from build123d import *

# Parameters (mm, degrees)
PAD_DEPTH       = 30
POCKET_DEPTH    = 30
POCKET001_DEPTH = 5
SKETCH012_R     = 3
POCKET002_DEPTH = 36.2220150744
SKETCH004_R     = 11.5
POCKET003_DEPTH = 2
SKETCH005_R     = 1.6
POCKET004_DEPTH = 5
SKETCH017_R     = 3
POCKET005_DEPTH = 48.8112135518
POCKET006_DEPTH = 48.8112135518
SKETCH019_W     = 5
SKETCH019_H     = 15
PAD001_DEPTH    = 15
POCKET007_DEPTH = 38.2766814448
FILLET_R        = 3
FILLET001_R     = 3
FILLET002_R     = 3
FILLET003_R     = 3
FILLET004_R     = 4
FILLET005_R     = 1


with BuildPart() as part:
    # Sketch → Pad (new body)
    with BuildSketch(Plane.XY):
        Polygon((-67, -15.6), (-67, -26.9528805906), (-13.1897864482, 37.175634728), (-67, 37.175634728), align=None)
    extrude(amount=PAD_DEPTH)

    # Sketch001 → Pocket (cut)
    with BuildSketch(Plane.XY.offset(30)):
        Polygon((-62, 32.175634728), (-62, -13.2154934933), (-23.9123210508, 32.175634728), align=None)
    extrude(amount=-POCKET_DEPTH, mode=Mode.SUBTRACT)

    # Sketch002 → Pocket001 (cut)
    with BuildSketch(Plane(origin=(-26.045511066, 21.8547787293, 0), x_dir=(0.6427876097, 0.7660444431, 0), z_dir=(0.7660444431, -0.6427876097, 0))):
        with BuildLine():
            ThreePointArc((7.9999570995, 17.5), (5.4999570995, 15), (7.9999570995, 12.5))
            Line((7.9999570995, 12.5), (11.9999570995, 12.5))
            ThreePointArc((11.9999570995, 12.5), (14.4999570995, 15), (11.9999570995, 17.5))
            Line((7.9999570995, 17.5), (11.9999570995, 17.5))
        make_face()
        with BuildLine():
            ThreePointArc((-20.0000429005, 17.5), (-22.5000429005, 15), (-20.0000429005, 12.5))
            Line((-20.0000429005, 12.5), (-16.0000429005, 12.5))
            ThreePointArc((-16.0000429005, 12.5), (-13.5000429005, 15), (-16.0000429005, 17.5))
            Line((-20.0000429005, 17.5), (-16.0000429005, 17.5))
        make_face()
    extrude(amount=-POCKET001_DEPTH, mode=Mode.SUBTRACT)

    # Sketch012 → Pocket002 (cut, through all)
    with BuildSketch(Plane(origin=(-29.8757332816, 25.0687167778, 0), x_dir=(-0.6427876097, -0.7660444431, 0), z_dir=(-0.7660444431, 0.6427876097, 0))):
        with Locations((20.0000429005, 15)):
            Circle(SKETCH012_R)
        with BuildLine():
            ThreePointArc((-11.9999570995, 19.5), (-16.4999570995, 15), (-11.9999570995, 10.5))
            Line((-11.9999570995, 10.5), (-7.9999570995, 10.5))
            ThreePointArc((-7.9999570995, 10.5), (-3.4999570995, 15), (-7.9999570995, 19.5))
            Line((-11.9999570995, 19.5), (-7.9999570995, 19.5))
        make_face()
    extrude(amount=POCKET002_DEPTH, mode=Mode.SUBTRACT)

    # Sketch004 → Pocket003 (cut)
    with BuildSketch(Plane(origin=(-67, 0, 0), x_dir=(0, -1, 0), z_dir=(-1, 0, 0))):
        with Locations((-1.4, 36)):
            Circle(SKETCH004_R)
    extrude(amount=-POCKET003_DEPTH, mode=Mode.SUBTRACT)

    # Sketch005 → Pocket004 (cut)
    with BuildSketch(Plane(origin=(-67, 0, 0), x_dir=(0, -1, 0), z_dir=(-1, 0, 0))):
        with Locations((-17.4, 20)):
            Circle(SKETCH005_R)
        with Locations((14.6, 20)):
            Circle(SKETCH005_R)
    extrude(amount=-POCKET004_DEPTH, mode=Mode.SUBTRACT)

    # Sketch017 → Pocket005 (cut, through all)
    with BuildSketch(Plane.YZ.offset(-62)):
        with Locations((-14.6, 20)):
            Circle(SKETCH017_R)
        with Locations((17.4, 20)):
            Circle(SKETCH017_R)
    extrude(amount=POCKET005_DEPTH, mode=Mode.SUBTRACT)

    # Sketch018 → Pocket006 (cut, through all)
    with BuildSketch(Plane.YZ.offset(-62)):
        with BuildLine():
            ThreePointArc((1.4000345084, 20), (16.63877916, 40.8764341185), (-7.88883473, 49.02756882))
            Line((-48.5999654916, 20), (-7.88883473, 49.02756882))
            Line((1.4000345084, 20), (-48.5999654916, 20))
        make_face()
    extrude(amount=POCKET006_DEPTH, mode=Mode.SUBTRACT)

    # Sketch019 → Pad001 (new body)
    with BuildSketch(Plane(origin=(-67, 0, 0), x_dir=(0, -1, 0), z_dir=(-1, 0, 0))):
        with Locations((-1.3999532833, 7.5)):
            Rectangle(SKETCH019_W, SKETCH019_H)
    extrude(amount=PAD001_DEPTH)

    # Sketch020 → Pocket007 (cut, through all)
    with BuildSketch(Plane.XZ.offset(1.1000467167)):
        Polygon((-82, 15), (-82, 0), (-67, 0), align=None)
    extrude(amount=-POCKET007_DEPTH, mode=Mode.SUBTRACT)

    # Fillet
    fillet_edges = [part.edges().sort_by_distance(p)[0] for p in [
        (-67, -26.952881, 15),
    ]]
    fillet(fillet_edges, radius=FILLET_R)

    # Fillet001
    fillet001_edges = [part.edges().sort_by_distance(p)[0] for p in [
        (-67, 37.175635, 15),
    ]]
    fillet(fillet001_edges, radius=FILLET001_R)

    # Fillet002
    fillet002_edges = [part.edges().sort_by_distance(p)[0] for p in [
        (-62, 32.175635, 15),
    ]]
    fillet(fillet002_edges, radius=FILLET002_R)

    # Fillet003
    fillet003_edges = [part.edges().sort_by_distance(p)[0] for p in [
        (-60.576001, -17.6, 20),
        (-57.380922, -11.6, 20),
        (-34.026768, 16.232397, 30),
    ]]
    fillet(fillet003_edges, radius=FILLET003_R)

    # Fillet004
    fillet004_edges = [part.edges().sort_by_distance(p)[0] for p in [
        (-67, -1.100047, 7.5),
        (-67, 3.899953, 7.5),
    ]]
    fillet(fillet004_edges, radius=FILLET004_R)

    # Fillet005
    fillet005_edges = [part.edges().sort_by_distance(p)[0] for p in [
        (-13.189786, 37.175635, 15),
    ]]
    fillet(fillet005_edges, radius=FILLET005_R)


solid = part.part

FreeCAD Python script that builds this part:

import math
import FreeCAD as App
import Part
import Sketcher
Q = App.Units.Quantity


def edges_at(feature, points):
    """Names of the edges that pass closest to the given points."""
    edges = feature.Shape.Edges
    near = lambda p: min(range(len(edges)), key=lambda i: edges[i].distToShape(Part.Vertex(*p))[0])
    return sorted({f"Edge{near(p) + 1}" for p in points})

doc = App.newDocument("Part")
params = doc.addObject("Spreadsheet::Sheet", "Params")
for row, (alias, value) in enumerate([
    ("pad1_length", "30 mm"),
    ("pocket1_length", "30 mm"),
    ("sketch3_radius", "2.5 mm"),
    ("sketch3_width", "4 mm"),
    ("pocket2_length", "5 mm"),
    ("sketch4_diameter", "6 mm"),
    ("sketch4_radius", "4.5 mm"),
    ("sketch4_width", "4 mm"),
    ("sketch5_diameter", "23 mm"),
    ("pocket4_length", "2 mm"),
    ("sketch6_diameter", "3.2 mm"),
    ("pocket5_length", "5 mm"),
    ("sketch7_diameter", "6 mm"),
    ("sketch8_radius", "16 mm"),
    ("sketch8_width", "50 mm"),
    ("sketch9_width", "5 mm"),
    ("sketch9_height", "15 mm"),
    ("pad2_length", "15 mm"),
    ("sketch10_width", "15 mm"),
    ("fillet_radius", "3 mm"),
    ("fillet2_radius", "3 mm"),
    ("fillet3_radius", "3 mm"),
    ("fillet4_radius", "3 mm"),
    ("fillet5_radius", "4 mm"),
    ("fillet6_radius", "1 mm"),
], start=1):
    params.set(f"A{row}", alias)
    params.set(f"B{row}", "=" + value)
    params.setAlias(f"B{row}", alias)

body = doc.addObject("PartDesign::Body", "Body")

# Sketch on XY plane
sketch1 = body.newObject("Sketcher::SketchObject", "Sketch")
sketch1.AttachmentSupport = (doc.getObject("XY_Plane"), [""])
sketch1.MapMode = "FlatFace"
sketch1.addGeometry(Part.LineSegment(App.Vector(-67, -27, 0), App.Vector(-13, 37, 0)), False)
sketch1.addGeometry(Part.LineSegment(App.Vector(-13, 37, 0), App.Vector(-67, 37, 0)), False)
sketch1.addGeometry(Part.LineSegment(App.Vector(-67, 37, 0), App.Vector(-67, -27, 0)), False)
sketch1.addConstraint(Sketcher.Constraint("Coincident", 0, 2, 1, 1))
sketch1.addConstraint(Sketcher.Constraint("Coincident", 1, 2, 2, 1))
sketch1.addConstraint(Sketcher.Constraint("Coincident", 2, 2, 0, 1))
sketch1.addConstraint(Sketcher.Constraint("Horizontal", 1))
sketch1.addConstraint(Sketcher.Constraint("Vertical", 2))
sketch1.addConstraint(Sketcher.Constraint("Angle", 0, Q("50 deg")))
sketch1.addConstraint(Sketcher.Constraint("DistanceX", 1, 2, -1, 1, Q("67 mm")))
sketch1.addConstraint(Sketcher.Constraint("Distance", 0, Q("83.713831 mm")))
sketch1.addConstraint(Sketcher.Constraint("DistanceY", 2, 2, -1, 1, Q("26.952881 mm")))
pad1 = body.newObject("PartDesign::Pad", "Pad")
pad1.Profile = sketch1
pad1.setExpression("Length", "Params.pad1_length")

# Sketch on XY plane
sketch2 = body.newObject("Sketcher::SketchObject", "Sketch001")
sketch2.AttachmentSupport = (doc.getObject("XY_Plane"), [""])
sketch2.MapMode = "FlatFace"
sketch2.AttachmentOffset = App.Placement(App.Vector(0, 0, 30), App.Rotation())
sketch2.addGeometry(Part.LineSegment(App.Vector(-62, 32, 0), App.Vector(-62, -13, 0)), False)
sketch2.addGeometry(Part.LineSegment(App.Vector(-62, -13, 0), App.Vector(-24, 32, 0)), False)
sketch2.addGeometry(Part.LineSegment(App.Vector(-24, 32, 0), App.Vector(-62, 32, 0)), False)
sketch2.addConstraint(Sketcher.Constraint("Coincident", 0, 2, 1, 1))
sketch2.addConstraint(Sketcher.Constraint("Coincident", 1, 2, 2, 1))
sketch2.addConstraint(Sketcher.Constraint("Coincident", 2, 2, 0, 1))
sketch2.addConstraint(Sketcher.Constraint("Vertical", 0))
sketch2.addConstraint(Sketcher.Constraint("Horizontal", 2))
sketch2.addConstraint(Sketcher.Constraint("Angle", 1, Q("50 deg")))
sketch2.addConstraint(Sketcher.Constraint("DistanceX", 0, 2, -1, 1, Q("62 mm")))
sketch2.addConstraint(Sketcher.Constraint("DistanceX", 2, 2, 2, 1, Q("38.087679 mm")))
sketch2.addConstraint(Sketcher.Constraint("DistanceY", 0, 2, -1, 1, Q("13.215493 mm")))
pocket1 = body.newObject("PartDesign::Pocket", "Pocket")
pocket1.Profile = sketch2
pocket1.setExpression("Length", "Params.pocket1_length")

# Sketch on an angled plane
sketch3 = body.newObject("Sketcher::SketchObject", "Sketch002")
sketch3.Placement = App.Placement(App.Vector(-26.045511, 21.854779, 0), App.Rotation(App.Vector(0.64278761, 0.766044443, 0), App.Vector(0, 0, 1), App.Vector(0.766044443, -0.64278761, 0), "ZXY"))
sketch3.addGeometry(Part.ArcOfCircle(Part.Circle(App.Vector(8, 15, 0), App.Vector(0, 0, 1), 2.5), math.radians(90), math.radians(270)), False)
sketch3.addGeometry(Part.LineSegment(App.Vector(8, 12.5, 0), App.Vector(12, 12.5, 0)), False)
sketch3.addGeometry(Part.ArcOfCircle(Part.Circle(App.Vector(12, 15, 0), App.Vector(0, 0, 1), 2.5), math.radians(-90), math.radians(90)), False)
sketch3.addGeometry(Part.LineSegment(App.Vector(12, 17.5, 0), App.Vector(8, 17.5, 0)), False)
sketch3.addGeometry(Part.ArcOfCircle(Part.Circle(App.Vector(-20, 15, 0), App.Vector(0, 0, 1), 2.5), math.radians(90), math.radians(270)), False)
sketch3.addGeometry(Part.LineSegment(App.Vector(-20, 12.5, 0), App.Vector(-16, 12.5, 0)), False)
sketch3.addGeometry(Part.ArcOfCircle(Part.Circle(App.Vector(-16, 15, 0), App.Vector(0, 0, 1), 2.5), math.radians(-90), math.radians(90)), False)
sketch3.addGeometry(Part.LineSegment(App.Vector(-16, 17.5, 0), App.Vector(-20, 17.5, 0)), False)
sketch3.addConstraint(Sketcher.Constraint("Tangent", 0, 2, 1, 1))
sketch3.addConstraint(Sketcher.Constraint("Tangent", 1, 2, 2, 1))
sketch3.addConstraint(Sketcher.Constraint("Tangent", 2, 2, 3, 1))
sketch3.addConstraint(Sketcher.Constraint("Tangent", 3, 2, 0, 1))
sketch3.addConstraint(Sketcher.Constraint("Tangent", 4, 2, 5, 1))
sketch3.addConstraint(Sketcher.Constraint("Tangent", 5, 2, 6, 1))
sketch3.addConstraint(Sketcher.Constraint("Tangent", 6, 2, 7, 1))
sketch3.addConstraint(Sketcher.Constraint("Tangent", 7, 2, 4, 1))
sketch3.addConstraint(Sketcher.Constraint("Horizontal", 1))
sketch3.addConstraint(Sketcher.Constraint("Horizontal", 3))
sketch3.addConstraint(Sketcher.Constraint("Horizontal", 5))
sketch3.addConstraint(Sketcher.Constraint("Horizontal", 7))
sketch3.addConstraint(Sketcher.Constraint("Equal", 2, 4))
sketch3.addConstraint(Sketcher.Constraint("Horizontal", 2, 3, 4, 3))
sketch3.addConstraint(Sketcher.Constraint("Equal", 3, 5))
sketch3.addConstraint(Sketcher.Constraint("Radius", 0, Q("2.5 mm")))
sketch3.addConstraint(Sketcher.Constraint("DistanceX", 1, 1, 1, 2, Q("4 mm")))
sketch3.addConstraint(Sketcher.Constraint("DistanceY", -1, 1, 0, 3, Q("15 mm")))
sketch3.addConstraint(Sketcher.Constraint("DistanceX", 4, 3, 0, 3, Q("28 mm")))
sketch3.addConstraint(Sketcher.Constraint("DistanceX", -1, 1, 0, 3, Q("7.999957 mm")))
sketch3.setExpression("Constraints[15]", "Params.sketch3_radius")
sketch3.setExpression("Constraints[16]", "Params.sketch3_width")
pocket2 = body.newObject("PartDesign::Pocket", "Pocket001")
pocket2.Profile = sketch3
pocket2.setExpression("Length", "Params.pocket2_length")

# Sketch on an angled plane
sketch4 = body.newObject("Sketcher::SketchObject", "Sketch003")
sketch4.Placement = App.Placement(App.Vector(-29.875733, 25.068717, 0), App.Rotation(App.Vector(-0.64278761, -0.766044443, 0), App.Vector(0, 0, 1), App.Vector(-0.766044443, 0.64278761, 0), "ZXY"))
sketch4.addGeometry(Part.Circle(App.Vector(20, 15, 0), App.Vector(0, 0, 1), 3), False)
sketch4.addGeometry(Part.ArcOfCircle(Part.Circle(App.Vector(-12, 15, 0), App.Vector(0, 0, 1), 4.5), math.radians(90), math.radians(270)), False)
sketch4.addGeometry(Part.LineSegment(App.Vector(-12, 10.5, 0), App.Vector(-8, 10.5, 0)), False)
sketch4.addGeometry(Part.ArcOfCircle(Part.Circle(App.Vector(-8, 15, 0), App.Vector(0, 0, 1), 4.5), math.radians(-90), math.radians(90)), False)
sketch4.addGeometry(Part.LineSegment(App.Vector(-8, 19.5, 0), App.Vector(-12, 19.5, 0)), False)
sketch4.addConstraint(Sketcher.Constraint("Tangent", 1, 2, 2, 1))
sketch4.addConstraint(Sketcher.Constraint("Tangent", 2, 2, 3, 1))
sketch4.addConstraint(Sketcher.Constraint("Tangent", 3, 2, 4, 1))
sketch4.addConstraint(Sketcher.Constraint("Tangent", 4, 2, 1, 1))
sketch4.addConstraint(Sketcher.Constraint("Horizontal", 2))
sketch4.addConstraint(Sketcher.Constraint("Horizontal", 4))
sketch4.addConstraint(Sketcher.Constraint("Horizontal", 0, 3, 1, 3))
sketch4.addConstraint(Sketcher.Constraint("Diameter", 0, Q("6 mm")))
sketch4.addConstraint(Sketcher.Constraint("Radius", 1, Q("4.5 mm")))
sketch4.addConstraint(Sketcher.Constraint("DistanceX", 2, 1, 2, 2, Q("4 mm")))
sketch4.addConstraint(Sketcher.Constraint("DistanceY", -1, 1, 0, 3, Q("15 mm")))
sketch4.addConstraint(Sketcher.Constraint("DistanceX", 1, 3, 0, 3, Q("32 mm")))
sketch4.addConstraint(Sketcher.Constraint("DistanceX", -1, 1, 0, 3, Q("20.000043 mm")))
sketch4.setExpression("Constraints[7]", "Params.sketch4_diameter")
sketch4.setExpression("Constraints[8]", "Params.sketch4_radius")
sketch4.setExpression("Constraints[9]", "Params.sketch4_width")
pocket3 = body.newObject("PartDesign::Pocket", "Pocket002")
pocket3.Profile = sketch4
pocket3.Type = "ThroughAll"
pocket3.Reversed = True

# Sketch on YZ plane
sketch5 = body.newObject("Sketcher::SketchObject", "Sketch004")
sketch5.AttachmentSupport = (doc.getObject("YZ_Plane"), [""])
sketch5.MapMode = "FlatFace"
sketch5.AttachmentOffset = App.Placement(App.Vector(0, 0, -67), App.Rotation())
sketch5.addGeometry(Part.Circle(App.Vector(1, 36, 0), App.Vector(0, 0, 1), 12), False)
sketch5.addConstraint(Sketcher.Constraint("Diameter", 0, Q("23 mm")))
sketch5.addConstraint(Sketcher.Constraint("DistanceY", -1, 1, 0, 3, Q("36 mm")))
sketch5.addConstraint(Sketcher.Constraint("DistanceX", -1, 1, 0, 3, Q("1.4 mm")))
sketch5.setExpression("Constraints[0]", "Params.sketch5_diameter")
pocket4 = body.newObject("PartDesign::Pocket", "Pocket003")
pocket4.Profile = sketch5
pocket4.setExpression("Length", "Params.pocket4_length")
pocket4.Reversed = True

# Sketch on YZ plane
sketch6 = body.newObject("Sketcher::SketchObject", "Sketch005")
sketch6.AttachmentSupport = (doc.getObject("YZ_Plane"), [""])
sketch6.MapMode = "FlatFace"
sketch6.AttachmentOffset = App.Placement(App.Vector(0, 0, -67), App.Rotation())
sketch6.addGeometry(Part.Circle(App.Vector(17.4, 20, 0), App.Vector(0, 0, 1), 1.6), False)
sketch6.addGeometry(Part.Circle(App.Vector(-14.6, 20, 0), App.Vector(0, 0, 1), 1.6), False)
sketch6.addConstraint(Sketcher.Constraint("Equal", 0, 1))
sketch6.addConstraint(Sketcher.Constraint("Horizontal", 0, 3, 1, 3))
sketch6.addConstraint(Sketcher.Constraint("Diameter", 0, Q("3.2 mm")))
sketch6.addConstraint(Sketcher.Constraint("DistanceY", -1, 1, 0, 3, Q("20 mm")))
sketch6.addConstraint(Sketcher.Constraint("DistanceX", 1, 3, 0, 3, Q("32 mm")))
sketch6.addConstraint(Sketcher.Constraint("DistanceX", -1, 1, 0, 3, Q("17.4 mm")))
sketch6.setExpression("Constraints[2]", "Params.sketch6_diameter")
pocket5 = body.newObject("PartDesign::Pocket", "Pocket004")
pocket5.Profile = sketch6
pocket5.setExpression("Length", "Params.pocket5_length")
pocket5.Reversed = True

# Sketch on YZ plane
sketch7 = body.newObject("Sketcher::SketchObject", "Sketch006")
sketch7.AttachmentSupport = (doc.getObject("YZ_Plane"), [""])
sketch7.MapMode = "FlatFace"
sketch7.AttachmentOffset = App.Placement(App.Vector(0, 0, -62), App.Rotation())
sketch7.addGeometry(Part.Circle(App.Vector(-14.6, 20, 0), App.Vector(0, 0, 1), 3), False)
sketch7.addGeometry(Part.Circle(App.Vector(17.4, 20, 0), App.Vector(0, 0, 1), 3), False)
sketch7.addConstraint(Sketcher.Constraint("Equal", 0, 1))
sketch7.addConstraint(Sketcher.Constraint("Horizontal", 0, 3, 1, 3))
sketch7.addConstraint(Sketcher.Constraint("Diameter", 0, Q("6 mm")))
sketch7.addConstraint(Sketcher.Constraint("DistanceY", -1, 1, 0, 3, Q("20 mm")))
sketch7.addConstraint(Sketcher.Constraint("DistanceX", 0, 3, 1, 3, Q("32 mm")))
sketch7.addConstraint(Sketcher.Constraint("DistanceX", 0, 3, -1, 1, Q("14.6 mm")))
sketch7.setExpression("Constraints[2]", "Params.sketch7_diameter")
pocket6 = body.newObject("PartDesign::Pocket", "Pocket005")
pocket6.Profile = sketch7
pocket6.Type = "ThroughAll"
pocket6.Reversed = True

# Sketch on YZ plane
sketch8 = body.newObject("Sketcher::SketchObject", "Sketch007")
sketch8.AttachmentSupport = (doc.getObject("YZ_Plane"), [""])
sketch8.MapMode = "FlatFace"
sketch8.AttachmentOffset = App.Placement(App.Vector(0, 0, -62), App.Rotation())
sketch8.addGeometry(Part.ArcOfCircle(Part.Circle(App.Vector(1, 36, 0), App.Vector(0, 0, 1), 16), math.radians(-90), math.radians(125)), False)
sketch8.addGeometry(Part.LineSegment(App.Vector(-8, 49, 0), App.Vector(-49, 20, 0)), False)
sketch8.addGeometry(Part.LineSegment(App.Vector(-49, 20, 0), App.Vector(1, 20, 0)), False)
sketch8.addConstraint(Sketcher.Constraint("Tangent", 0, 2, 1, 1))
sketch8.addConstraint(Sketcher.Constraint("Coincident", 1, 2, 2, 1))
sketch8.addConstraint(Sketcher.Constraint("Coincident", 2, 2, 0, 1))
sketch8.addConstraint(Sketcher.Constraint("Horizontal", 2))
sketch8.addConstraint(Sketcher.Constraint("Radius", 0, Q("16 mm")))
sketch8.addConstraint(Sketcher.Constraint("DistanceX", 2, 1, 2, 2, Q("50 mm")))
sketch8.addConstraint(Sketcher.Constraint("DistanceY", -1, 1, 0, 3, Q("36 mm")))
sketch8.addConstraint(Sketcher.Constraint("DistanceX", -1, 1, 0, 3, Q("1.4 mm")))
sketch8.addConstraint(Sketcher.Constraint("Distance", 1, Q("49.999959 mm")))
sketch8.setExpression("Constraints[4]", "Params.sketch8_radius")
sketch8.setExpression("Constraints[5]", "Params.sketch8_width")
pocket7 = body.newObject("PartDesign::Pocket", "Pocket006")
pocket7.Profile = sketch8
pocket7.Type = "ThroughAll"
pocket7.Reversed = True

# Sketch on YZ plane
sketch9 = body.newObject("Sketcher::SketchObject", "Sketch008")
sketch9.AttachmentSupport = (doc.getObject("YZ_Plane"), [""])
sketch9.MapMode = "FlatFace"
sketch9.AttachmentOffset = App.Placement(App.Vector(0, 0, -67), App.Rotation())
sketch9.addGeometry(Part.LineSegment(App.Vector(4, 15, 0), App.Vector(4, 0, 0)), False)
sketch9.addGeometry(Part.LineSegment(App.Vector(4, 0, 0), App.Vector(-1, 0, 0)), False)
sketch9.addGeometry(Part.LineSegment(App.Vector(-1, 0, 0), App.Vector(-1, 15, 0)), False)
sketch9.addGeometry(Part.LineSegment(App.Vector(-1, 15, 0), App.Vector(4, 15, 0)), False)
sketch9.addConstraint(Sketcher.Constraint("Coincident", 0, 2, 1, 1))
sketch9.addConstraint(Sketcher.Constraint("Coincident", 1, 2, 2, 1))
sketch9.addConstraint(Sketcher.Constraint("Coincident", 2, 2, 3, 1))
sketch9.addConstraint(Sketcher.Constraint("Coincident", 3, 2, 0, 1))
sketch9.addConstraint(Sketcher.Constraint("Vertical", 0))
sketch9.addConstraint(Sketcher.Constraint("Horizontal", 1))
sketch9.addConstraint(Sketcher.Constraint("Vertical", 2))
sketch9.addConstraint(Sketcher.Constraint("Horizontal", 3))
sketch9.addConstraint(Sketcher.Constraint("PointOnObject", 0, 2, -1))
sketch9.addConstraint(Sketcher.Constraint("DistanceX", 1, 2, 1, 1, Q("5 mm")))
sketch9.addConstraint(Sketcher.Constraint("DistanceY", 0, 2, 0, 1, Q("15 mm")))
sketch9.addConstraint(Sketcher.Constraint("DistanceX", -1, 1, 0, 2, Q("3.899953 mm")))
sketch9.setExpression("Constraints[9]", "Params.sketch9_width")
sketch9.setExpression("Constraints[10]", "Params.sketch9_height")
pad2 = body.newObject("PartDesign::Pad", "Pad001")
pad2.Profile = sketch9
pad2.setExpression("Length", "Params.pad2_length")
pad2.Reversed = True

# Sketch on XZ plane
sketch10 = body.newObject("Sketcher::SketchObject", "Sketch009")
sketch10.AttachmentSupport = (doc.getObject("XZ_Plane"), [""])
sketch10.MapMode = "FlatFace"
sketch10.AttachmentOffset = App.Placement(App.Vector(0, 0, 1.100047), App.Rotation())
sketch10.addGeometry(Part.LineSegment(App.Vector(-82, 15, 0), App.Vector(-82, 0, 0)), False)
sketch10.addGeometry(Part.LineSegment(App.Vector(-82, 0, 0), App.Vector(-67, 0, 0)), False)
sketch10.addGeometry(Part.LineSegment(App.Vector(-67, 0, 0), App.Vector(-82, 15, 0)), False)
sketch10.addConstraint(Sketcher.Constraint("Coincident", 0, 2, 1, 1))
sketch10.addConstraint(Sketcher.Constraint("Coincident", 1, 2, 2, 1))
sketch10.addConstraint(Sketcher.Constraint("Coincident", 2, 2, 0, 1))
sketch10.addConstraint(Sketcher.Constraint("Vertical", 0))
sketch10.addConstraint(Sketcher.Constraint("Horizontal", 1))
sketch10.addConstraint(Sketcher.Constraint("PointOnObject", 0, 2, -1))
sketch10.addConstraint(Sketcher.Constraint("Equal", 1, 0))
sketch10.addConstraint(Sketcher.Constraint("DistanceX", 1, 1, 1, 2, Q("15 mm")))
sketch10.addConstraint(Sketcher.Constraint("DistanceX", 0, 2, -1, 1, Q("82 mm")))
sketch10.setExpression("Constraints[7]", "Params.sketch10_width")
pocket8 = body.newObject("PartDesign::Pocket", "Pocket007")
pocket8.Profile = sketch10
pocket8.Type = "ThroughAll"
doc.recompute()

fillet = body.newObject("PartDesign::Fillet", "Fillet")
fillet.Base = (pocket8, edges_at(pocket8, [(-67, -26.953, 15)]))
fillet.setExpression("Radius", "Params.fillet_radius")
doc.recompute()

fillet2 = body.newObject("PartDesign::Fillet", "Fillet001")
fillet2.Base = (fillet, edges_at(fillet, [(-67, 37.176, 15)]))
fillet2.setExpression("Radius", "Params.fillet2_radius")
doc.recompute()

fillet3 = body.newObject("PartDesign::Fillet", "Fillet002")
fillet3.Base = (fillet2, edges_at(fillet2, [(-62, 32.176, 15)]))
fillet3.setExpression("Radius", "Params.fillet3_radius")
doc.recompute()

fillet4 = body.newObject("PartDesign::Fillet", "Fillet003")
fillet4.Base = (fillet3, edges_at(fillet3, [(-60.576, -17.6, 20), (-57.381, -11.6, 20), (-34.027, 16.232, 30)]))
fillet4.setExpression("Radius", "Params.fillet4_radius")
doc.recompute()

fillet5 = body.newObject("PartDesign::Fillet", "Fillet004")
fillet5.Base = (fillet4, edges_at(fillet4, [(-67, -1.1, 7.5), (-67, 3.9, 7.5)]))
fillet5.setExpression("Radius", "Params.fillet5_radius")
doc.recompute()

fillet6 = body.newObject("PartDesign::Fillet", "Fillet005")
fillet6.Base = (fillet5, edges_at(fillet5, [(-13.19, 37.176, 15)]))
fillet6.setExpression("Radius", "Params.fillet6_radius")

doc.recompute()
